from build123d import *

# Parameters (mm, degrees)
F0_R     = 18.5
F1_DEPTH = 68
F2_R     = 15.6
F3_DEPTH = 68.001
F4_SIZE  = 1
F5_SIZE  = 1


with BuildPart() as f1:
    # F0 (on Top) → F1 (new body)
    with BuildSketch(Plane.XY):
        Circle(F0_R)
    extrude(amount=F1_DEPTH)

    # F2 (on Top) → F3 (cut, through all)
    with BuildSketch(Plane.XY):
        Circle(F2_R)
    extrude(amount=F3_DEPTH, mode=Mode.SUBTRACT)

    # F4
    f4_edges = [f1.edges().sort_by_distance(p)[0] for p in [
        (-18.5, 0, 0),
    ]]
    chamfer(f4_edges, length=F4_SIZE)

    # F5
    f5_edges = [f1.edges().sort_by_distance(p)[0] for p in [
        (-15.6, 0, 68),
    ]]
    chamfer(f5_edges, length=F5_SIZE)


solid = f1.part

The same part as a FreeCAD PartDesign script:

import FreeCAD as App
import Part
import Sketcher
Q = App.Units.Quantity


def edges_at(feature, points):
    """Names of the edges that pass closest to the given points."""
    edges = feature.Shape.Edges
    near = lambda p: min(range(len(edges)), key=lambda i: edges[i].distToShape(Part.Vertex(*p))[0])
    return sorted({f"Edge{near(p) + 1}" for p in points})

doc = App.newDocument("Part")
body = doc.addObject("PartDesign::Body", "Body")

# Sketch on XY plane
sketch1 = body.newObject("Sketcher::SketchObject", "Sketch")
sketch1.AttachmentSupport = (doc.getObject("XY_Plane"), [""])
sketch1.MapMode = "FlatFace"
sketch1.addGeometry(Part.Circle(App.Vector(0, 0, 0), App.Vector(0, 0, 1), 18.5), False)
sketch1.addConstraint([
    Sketcher.Constraint("Coincident", 0, 3, -1, 1),
    Sketcher.Constraint("Diameter", 0, Q("37 mm")),
])
pad1 = body.newObject("PartDesign::Pad", "Pad")
pad1.Profile = sketch1
pad1.Length = 68

# Sketch on XY plane
sketch2 = body.newObject("Sketcher::SketchObject", "Sketch001")
sketch2.AttachmentSupport = (doc.getObject("XY_Plane"), [""])
sketch2.MapMode = "FlatFace"
sketch2.addGeometry(Part.Circle(App.Vector(0, 0, 0), App.Vector(0, 0, 1), 15.6), False)
sketch2.addConstraint([
    Sketcher.Constraint("Coincident", 0, 3, -1, 1),
    Sketcher.Constraint("Diameter", 0, Q("31.2 mm")),
])
pocket1 = body.newObject("PartDesign::Pocket", "Pocket")
pocket1.Profile = sketch2
pocket1.Type = "ThroughAll"
pocket1.Reversed = True
doc.recompute()

chamfer = body.newObject("PartDesign::Chamfer", "Chamfer")
chamfer.Base = (pocket1, edges_at(pocket1, [(-18.5, 0, 0)]))
chamfer.Size = 1
doc.recompute()

chamfer2 = body.newObject("PartDesign::Chamfer", "Chamfer001")
chamfer2.Base = (chamfer, edges_at(chamfer, [(-15.6, 0, 68)]))
chamfer2.Size = 1

doc.recompute()
